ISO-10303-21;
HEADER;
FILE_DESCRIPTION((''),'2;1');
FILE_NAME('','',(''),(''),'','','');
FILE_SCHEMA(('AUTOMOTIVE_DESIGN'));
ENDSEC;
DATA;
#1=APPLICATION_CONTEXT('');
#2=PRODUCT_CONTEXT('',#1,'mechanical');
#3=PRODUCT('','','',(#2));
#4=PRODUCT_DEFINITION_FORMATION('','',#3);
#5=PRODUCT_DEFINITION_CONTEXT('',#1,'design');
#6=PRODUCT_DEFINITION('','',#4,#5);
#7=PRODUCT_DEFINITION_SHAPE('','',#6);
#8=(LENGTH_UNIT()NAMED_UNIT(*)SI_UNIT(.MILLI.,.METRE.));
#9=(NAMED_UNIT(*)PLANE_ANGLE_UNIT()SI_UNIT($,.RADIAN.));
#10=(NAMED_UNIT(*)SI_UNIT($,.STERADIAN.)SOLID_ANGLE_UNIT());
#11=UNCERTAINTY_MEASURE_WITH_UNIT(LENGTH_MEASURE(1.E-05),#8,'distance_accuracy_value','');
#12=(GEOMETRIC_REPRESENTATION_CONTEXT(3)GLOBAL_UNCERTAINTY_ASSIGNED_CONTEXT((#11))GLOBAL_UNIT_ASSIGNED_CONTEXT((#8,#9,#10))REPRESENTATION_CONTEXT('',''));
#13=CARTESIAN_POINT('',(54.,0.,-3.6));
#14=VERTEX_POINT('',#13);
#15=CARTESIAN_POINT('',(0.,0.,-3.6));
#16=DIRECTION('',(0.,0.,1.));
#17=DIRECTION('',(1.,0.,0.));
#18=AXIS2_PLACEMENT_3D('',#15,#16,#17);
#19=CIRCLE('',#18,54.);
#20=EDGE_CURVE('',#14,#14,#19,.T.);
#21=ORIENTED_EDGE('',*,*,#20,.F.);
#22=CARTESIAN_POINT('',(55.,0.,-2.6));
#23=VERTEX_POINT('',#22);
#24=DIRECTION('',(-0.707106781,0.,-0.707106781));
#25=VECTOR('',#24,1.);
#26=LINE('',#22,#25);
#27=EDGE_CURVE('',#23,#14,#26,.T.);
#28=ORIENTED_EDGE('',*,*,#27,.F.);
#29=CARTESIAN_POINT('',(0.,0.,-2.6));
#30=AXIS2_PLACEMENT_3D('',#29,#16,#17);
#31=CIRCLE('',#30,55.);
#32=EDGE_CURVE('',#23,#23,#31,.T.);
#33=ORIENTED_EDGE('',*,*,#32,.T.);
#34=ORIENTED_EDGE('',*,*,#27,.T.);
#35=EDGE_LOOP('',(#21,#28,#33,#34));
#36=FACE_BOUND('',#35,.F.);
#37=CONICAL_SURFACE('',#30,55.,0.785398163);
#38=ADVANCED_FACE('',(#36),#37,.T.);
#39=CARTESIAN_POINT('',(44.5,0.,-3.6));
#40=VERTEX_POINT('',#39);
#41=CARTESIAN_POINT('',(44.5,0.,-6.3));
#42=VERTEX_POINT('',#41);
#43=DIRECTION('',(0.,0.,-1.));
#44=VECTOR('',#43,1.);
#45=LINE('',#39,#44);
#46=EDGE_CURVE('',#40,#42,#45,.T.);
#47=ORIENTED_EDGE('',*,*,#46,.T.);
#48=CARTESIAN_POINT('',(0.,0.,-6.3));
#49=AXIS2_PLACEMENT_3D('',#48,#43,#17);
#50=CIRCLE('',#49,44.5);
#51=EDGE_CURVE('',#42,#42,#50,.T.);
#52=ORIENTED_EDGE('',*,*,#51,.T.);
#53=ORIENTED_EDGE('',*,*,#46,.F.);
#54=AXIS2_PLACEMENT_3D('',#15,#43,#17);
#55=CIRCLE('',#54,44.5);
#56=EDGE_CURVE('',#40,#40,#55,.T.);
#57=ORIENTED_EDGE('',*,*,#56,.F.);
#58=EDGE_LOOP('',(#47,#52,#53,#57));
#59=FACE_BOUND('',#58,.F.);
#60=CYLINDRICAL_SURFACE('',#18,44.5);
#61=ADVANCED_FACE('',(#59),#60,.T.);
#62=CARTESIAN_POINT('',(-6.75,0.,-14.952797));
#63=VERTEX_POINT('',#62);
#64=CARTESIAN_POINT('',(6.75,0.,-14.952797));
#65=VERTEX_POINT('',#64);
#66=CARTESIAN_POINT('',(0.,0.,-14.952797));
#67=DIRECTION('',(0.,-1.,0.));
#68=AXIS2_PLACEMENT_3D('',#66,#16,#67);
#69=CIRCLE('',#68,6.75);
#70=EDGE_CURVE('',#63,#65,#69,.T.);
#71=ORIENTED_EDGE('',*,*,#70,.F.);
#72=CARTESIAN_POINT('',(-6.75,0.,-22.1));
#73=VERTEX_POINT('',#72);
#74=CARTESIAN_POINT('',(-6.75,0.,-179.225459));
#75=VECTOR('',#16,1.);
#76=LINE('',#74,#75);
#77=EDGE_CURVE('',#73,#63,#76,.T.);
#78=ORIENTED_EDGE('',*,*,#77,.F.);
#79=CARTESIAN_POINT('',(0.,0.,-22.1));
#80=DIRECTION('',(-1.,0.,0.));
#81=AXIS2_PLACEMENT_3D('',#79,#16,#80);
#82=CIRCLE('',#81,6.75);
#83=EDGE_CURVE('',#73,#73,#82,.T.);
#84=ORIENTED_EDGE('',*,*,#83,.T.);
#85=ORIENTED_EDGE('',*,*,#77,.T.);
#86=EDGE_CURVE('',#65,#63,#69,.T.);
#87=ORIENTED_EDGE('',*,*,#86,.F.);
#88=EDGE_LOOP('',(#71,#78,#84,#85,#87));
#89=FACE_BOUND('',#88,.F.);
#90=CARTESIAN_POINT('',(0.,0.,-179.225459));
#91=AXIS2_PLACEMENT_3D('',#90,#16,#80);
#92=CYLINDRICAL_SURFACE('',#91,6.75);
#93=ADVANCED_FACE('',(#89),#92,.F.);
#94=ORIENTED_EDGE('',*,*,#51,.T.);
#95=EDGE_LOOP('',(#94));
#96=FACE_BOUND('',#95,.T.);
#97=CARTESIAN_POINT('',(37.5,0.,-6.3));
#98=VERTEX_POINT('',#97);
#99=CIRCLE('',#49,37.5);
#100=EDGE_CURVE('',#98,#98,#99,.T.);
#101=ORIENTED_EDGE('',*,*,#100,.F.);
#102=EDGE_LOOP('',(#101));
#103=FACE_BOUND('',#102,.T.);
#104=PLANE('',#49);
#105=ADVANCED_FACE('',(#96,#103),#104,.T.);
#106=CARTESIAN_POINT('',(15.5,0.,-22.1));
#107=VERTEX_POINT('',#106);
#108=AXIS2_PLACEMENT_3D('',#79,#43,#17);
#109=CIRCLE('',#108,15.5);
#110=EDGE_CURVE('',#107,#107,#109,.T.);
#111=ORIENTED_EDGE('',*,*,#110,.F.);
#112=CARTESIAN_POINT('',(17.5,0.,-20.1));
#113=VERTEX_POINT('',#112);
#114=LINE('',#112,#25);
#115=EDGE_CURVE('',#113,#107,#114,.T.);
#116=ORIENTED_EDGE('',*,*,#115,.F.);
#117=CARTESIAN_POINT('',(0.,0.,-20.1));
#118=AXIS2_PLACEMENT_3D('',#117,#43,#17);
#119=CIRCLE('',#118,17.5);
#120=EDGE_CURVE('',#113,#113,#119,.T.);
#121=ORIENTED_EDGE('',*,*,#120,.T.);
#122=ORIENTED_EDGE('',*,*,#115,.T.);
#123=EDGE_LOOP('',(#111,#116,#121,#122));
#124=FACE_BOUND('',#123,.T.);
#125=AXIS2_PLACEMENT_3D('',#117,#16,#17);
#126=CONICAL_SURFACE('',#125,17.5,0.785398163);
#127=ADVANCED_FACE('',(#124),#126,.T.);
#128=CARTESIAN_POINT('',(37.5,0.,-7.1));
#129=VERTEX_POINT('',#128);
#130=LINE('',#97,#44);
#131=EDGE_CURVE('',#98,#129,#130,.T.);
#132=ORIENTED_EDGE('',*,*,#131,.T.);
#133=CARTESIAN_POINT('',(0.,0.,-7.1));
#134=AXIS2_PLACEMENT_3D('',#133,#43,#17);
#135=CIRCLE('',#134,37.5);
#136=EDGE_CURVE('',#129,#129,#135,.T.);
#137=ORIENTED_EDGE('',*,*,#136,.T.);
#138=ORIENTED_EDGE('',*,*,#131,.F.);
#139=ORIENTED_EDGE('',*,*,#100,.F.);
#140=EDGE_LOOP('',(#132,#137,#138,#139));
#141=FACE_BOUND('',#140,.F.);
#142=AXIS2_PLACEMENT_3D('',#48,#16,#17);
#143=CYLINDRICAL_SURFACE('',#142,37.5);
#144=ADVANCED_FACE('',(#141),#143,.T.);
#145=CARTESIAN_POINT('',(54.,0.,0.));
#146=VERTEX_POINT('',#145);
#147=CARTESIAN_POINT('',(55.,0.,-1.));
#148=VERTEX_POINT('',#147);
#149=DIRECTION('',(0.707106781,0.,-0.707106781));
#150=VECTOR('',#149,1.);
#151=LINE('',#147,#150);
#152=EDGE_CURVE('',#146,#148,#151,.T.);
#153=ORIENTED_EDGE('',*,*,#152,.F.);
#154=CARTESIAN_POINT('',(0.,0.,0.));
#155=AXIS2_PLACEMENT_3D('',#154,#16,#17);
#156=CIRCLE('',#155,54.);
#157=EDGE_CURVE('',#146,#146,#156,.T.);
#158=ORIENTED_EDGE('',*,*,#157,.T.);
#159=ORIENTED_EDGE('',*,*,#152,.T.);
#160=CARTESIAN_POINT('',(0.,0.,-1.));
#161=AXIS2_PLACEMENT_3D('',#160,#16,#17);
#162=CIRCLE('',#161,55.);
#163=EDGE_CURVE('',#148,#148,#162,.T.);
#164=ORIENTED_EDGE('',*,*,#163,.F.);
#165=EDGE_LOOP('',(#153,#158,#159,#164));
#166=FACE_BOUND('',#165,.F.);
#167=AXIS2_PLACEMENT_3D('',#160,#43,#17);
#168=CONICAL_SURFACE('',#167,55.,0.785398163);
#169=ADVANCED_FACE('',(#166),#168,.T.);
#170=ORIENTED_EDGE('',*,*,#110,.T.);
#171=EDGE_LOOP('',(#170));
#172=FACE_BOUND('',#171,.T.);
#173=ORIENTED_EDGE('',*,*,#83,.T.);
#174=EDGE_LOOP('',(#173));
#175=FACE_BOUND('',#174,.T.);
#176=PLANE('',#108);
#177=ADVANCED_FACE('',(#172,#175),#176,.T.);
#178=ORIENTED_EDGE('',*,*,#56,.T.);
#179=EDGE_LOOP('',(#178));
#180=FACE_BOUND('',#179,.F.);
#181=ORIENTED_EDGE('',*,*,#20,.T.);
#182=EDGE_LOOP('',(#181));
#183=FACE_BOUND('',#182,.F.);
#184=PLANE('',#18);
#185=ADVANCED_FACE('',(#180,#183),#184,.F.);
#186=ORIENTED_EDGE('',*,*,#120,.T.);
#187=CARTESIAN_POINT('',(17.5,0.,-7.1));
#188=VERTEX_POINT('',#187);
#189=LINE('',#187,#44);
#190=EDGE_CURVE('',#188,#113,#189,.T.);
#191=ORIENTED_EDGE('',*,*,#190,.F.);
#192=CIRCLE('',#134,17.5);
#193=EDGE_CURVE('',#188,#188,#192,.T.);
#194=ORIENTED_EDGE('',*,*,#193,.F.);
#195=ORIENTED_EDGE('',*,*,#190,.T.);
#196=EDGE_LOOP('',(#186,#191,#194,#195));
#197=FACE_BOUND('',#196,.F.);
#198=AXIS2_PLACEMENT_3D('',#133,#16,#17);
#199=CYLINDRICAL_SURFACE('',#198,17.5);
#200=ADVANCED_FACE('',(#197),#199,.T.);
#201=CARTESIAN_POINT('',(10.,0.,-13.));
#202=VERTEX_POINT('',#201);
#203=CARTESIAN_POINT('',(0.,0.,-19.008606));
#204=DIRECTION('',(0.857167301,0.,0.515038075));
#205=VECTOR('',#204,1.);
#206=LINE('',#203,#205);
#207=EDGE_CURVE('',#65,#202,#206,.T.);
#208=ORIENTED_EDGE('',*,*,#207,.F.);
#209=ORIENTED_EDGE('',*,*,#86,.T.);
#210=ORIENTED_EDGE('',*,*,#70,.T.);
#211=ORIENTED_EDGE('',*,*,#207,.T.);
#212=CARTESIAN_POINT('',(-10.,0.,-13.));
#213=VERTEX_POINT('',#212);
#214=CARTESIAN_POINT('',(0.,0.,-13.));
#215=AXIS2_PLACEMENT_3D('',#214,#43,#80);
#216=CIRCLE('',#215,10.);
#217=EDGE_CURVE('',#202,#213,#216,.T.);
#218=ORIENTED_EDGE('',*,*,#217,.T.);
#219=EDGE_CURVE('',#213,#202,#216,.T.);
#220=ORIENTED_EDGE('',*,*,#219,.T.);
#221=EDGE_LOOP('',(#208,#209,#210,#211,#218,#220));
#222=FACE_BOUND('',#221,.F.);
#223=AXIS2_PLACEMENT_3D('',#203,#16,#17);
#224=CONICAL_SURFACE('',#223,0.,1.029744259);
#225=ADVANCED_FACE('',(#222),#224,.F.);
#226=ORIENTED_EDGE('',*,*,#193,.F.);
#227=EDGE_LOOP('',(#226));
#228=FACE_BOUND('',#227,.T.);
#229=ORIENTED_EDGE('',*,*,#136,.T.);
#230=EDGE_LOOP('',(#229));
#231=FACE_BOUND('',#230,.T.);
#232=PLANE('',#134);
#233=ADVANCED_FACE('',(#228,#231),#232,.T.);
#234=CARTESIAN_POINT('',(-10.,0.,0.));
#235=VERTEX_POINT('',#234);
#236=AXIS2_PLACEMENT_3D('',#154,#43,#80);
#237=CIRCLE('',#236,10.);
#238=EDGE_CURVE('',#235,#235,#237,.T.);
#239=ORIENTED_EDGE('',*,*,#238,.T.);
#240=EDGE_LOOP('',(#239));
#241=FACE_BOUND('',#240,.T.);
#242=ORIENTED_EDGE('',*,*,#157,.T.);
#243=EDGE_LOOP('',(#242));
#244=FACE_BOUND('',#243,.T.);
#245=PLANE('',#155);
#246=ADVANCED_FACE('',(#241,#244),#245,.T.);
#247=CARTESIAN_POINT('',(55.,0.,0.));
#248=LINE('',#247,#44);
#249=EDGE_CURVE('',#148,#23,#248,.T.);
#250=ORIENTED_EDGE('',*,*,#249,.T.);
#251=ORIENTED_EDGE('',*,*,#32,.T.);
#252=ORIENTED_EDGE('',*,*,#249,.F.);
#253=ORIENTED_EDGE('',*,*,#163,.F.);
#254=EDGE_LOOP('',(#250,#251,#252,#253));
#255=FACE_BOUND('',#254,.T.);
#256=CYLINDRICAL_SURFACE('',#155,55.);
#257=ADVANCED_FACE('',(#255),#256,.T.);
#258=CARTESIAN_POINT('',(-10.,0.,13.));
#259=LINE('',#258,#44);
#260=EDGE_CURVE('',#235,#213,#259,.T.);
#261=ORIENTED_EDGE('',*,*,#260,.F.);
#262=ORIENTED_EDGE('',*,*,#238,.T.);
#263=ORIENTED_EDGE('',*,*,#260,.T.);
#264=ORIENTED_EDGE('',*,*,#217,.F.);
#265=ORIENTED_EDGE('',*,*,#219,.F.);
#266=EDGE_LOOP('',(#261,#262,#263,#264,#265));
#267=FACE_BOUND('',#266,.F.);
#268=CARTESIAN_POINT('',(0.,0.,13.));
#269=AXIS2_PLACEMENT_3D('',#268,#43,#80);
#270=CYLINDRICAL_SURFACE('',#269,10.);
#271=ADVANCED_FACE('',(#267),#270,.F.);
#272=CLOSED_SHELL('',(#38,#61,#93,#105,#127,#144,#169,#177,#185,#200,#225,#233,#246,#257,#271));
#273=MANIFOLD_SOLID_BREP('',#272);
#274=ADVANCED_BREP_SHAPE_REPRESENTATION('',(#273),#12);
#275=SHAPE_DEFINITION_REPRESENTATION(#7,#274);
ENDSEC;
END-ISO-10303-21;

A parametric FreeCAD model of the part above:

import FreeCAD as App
import Part
import Sketcher


def edges_at(feature, points):
    """Names of the edges that pass closest to the given points."""
    edges = feature.Shape.Edges
    near = lambda p: min(range(len(edges)), key=lambda i: edges[i].distToShape(Part.Vertex(*p))[0])
    return sorted({f"Edge{near(p) + 1}" for p in points})

doc = App.newDocument("Part")
body = doc.addObject("PartDesign::Body", "Body")

# Sketch on XY plane
sketch1 = doc.addObject("Sketcher::SketchObject", "Sketch")
body.addObject(sketch1)
sketch1.AttachmentSupport = (doc.XY_Plane, [""])
sketch1.MapMode = "FlatFace"
sketch1.addGeometry(Part.Circle(App.Vector(0, 0, 0), App.Vector(0, 0, 1), 55), False)
sketch1.addConstraint([
    Sketcher.Constraint("Coincident", 0, 3, -1, 1),
    Sketcher.Constraint("Diameter", 0, 110.0),
])
pad1 = doc.addObject("PartDesign::Pad", "Pad")
body.addObject(pad1)
pad1.Profile = sketch1
pad1.Length = 3.6
pad1.Reversed = True

# Sketch on XY plane
sketch2 = doc.addObject("Sketcher::SketchObject", "Sketch001")
body.addObject(sketch2)
sketch2.AttachmentSupport = (doc.XY_Plane, [""])
sketch2.MapMode = "FlatFace"
sketch2.AttachmentOffset = App.Placement(App.Vector(0, 0, -3.6), App.Rotation())
sketch2.addGeometry(Part.Circle(App.Vector(0, 0, 0), App.Vector(0, 0, 1), 44), False)
sketch2.addConstraint([
    Sketcher.Constraint("Coincident", 0, 3, -1, 1),
    Sketcher.Constraint("Diameter", 0, 89.0),
])
pad2 = doc.addObject("PartDesign::Pad", "Pad001")
body.addObject(pad2)
pad2.Profile = sketch2
pad2.Length = 2.7
pad2.Reversed = True

# Sketch on XY plane
sketch3 = doc.addObject("Sketcher::SketchObject", "Sketch002")
body.addObject(sketch3)
sketch3.AttachmentSupport = (doc.XY_Plane, [""])
sketch3.MapMode = "FlatFace"
sketch3.AttachmentOffset = App.Placement(App.Vector(0, 0, -6.3), App.Rotation())
sketch3.addGeometry(Part.Circle(App.Vector(0, 0, 0), App.Vector(0, 0, 1), 38), False)
sketch3.addConstraint([
    Sketcher.Constraint("Coincident", 0, 3, -1, 1),
    Sketcher.Constraint("Diameter", 0, 75.0),
])
pad3 = doc.addObject("PartDesign::Pad", "Pad002")
body.addObject(pad3)
pad3.Profile = sketch3
pad3.Length = 0.8
pad3.Reversed = True

# Sketch on XY plane
sketch4 = doc.addObject("Sketcher::SketchObject", "Sketch003")
body.addObject(sketch4)
sketch4.AttachmentSupport = (doc.XY_Plane, [""])
sketch4.MapMode = "FlatFace"
sketch4.AttachmentOffset = App.Placement(App.Vector(0, 0, -7.1), App.Rotation())
sketch4.addGeometry(Part.Circle(App.Vector(0, 0, 0), App.Vector(0, 0, 1), 18), False)
sketch4.addConstraint([
    Sketcher.Constraint("Coincident", 0, 3, -1, 1),
    Sketcher.Constraint("Diameter", 0, 35.0),
])
pad4 = doc.addObject("PartDesign::Pad", "Pad003")
body.addObject(pad4)
pad4.Profile = sketch4
pad4.Length = 15
pad4.Reversed = True
doc.recompute()

chamfer = doc.addObject("PartDesign::Chamfer", "Chamfer")
body.addObject(chamfer)
chamfer.Base = (pad4, edges_at(pad4, [(-17.5, 0, -22.1)]))
chamfer.Size = 2

# Sketch on XY plane
sketch5 = doc.addObject("Sketcher::SketchObject", "Sketch004")
body.addObject(sketch5)
sketch5.AttachmentSupport = (doc.XY_Plane, [""])
sketch5.MapMode = "FlatFace"
sketch5.addGeometry(Part.Circle(App.Vector(0, 0, 0), App.Vector(0, 0, 1), 10), False)
sketch5.addConstraint([
    Sketcher.Constraint("Coincident", 0, 3, -1, 1),
    Sketcher.Constraint("Diameter", 0, 20.0),
])
doc.recompute()
hole = doc.addObject("PartDesign::Hole", "Hole")
body.addObject(hole)
hole.Profile = sketch5
hole.ThreadType = "None"
hole.Diameter = 20
hole.DepthType = "Dimension"
hole.Depth = 13
hole.DrillPoint = "Angled"
hole.DrillPointAngle = 118

# Sketch on XY plane
sketch6 = doc.addObject("Sketcher::SketchObject", "Sketch005")
body.addObject(sketch6)
sketch6.AttachmentSupport = (doc.XY_Plane, [""])
sketch6.MapMode = "FlatFace"
sketch6.AttachmentOffset = App.Placement(App.Vector(0, 0, -22.1), App.Rotation())
sketch6.addGeometry(Part.Circle(App.Vector(0, 0, 0), App.Vector(0, 0, 1), 7), False)
sketch6.addConstraint([
    Sketcher.Constraint("Coincident", 0, 3, -1, 1),
    Sketcher.Constraint("Diameter", 0, 13.5),
])
doc.recompute()
hole2 = doc.addObject("PartDesign::Hole", "Hole001")
body.addObject(hole2)
hole2.Profile = sketch6
hole2.ThreadType = "None"
hole2.Diameter = 13.5
hole2.DepthType = "ThroughAll"
hole2.Reversed = True
doc.recompute()

chamfer2 = doc.addObject("PartDesign::Chamfer", "Chamfer001")
body.addObject(chamfer2)
chamfer2.Base = (hole2, edges_at(hole2, [(-55, 0, 0)]))
chamfer2.Size = 1
doc.recompute()

chamfer3 = doc.addObject("PartDesign::Chamfer", "Chamfer002")
body.addObject(chamfer3)
chamfer3.Base = (chamfer2, edges_at(chamfer2, [(-55, 0, -3.6)]))
chamfer3.Size = 1

doc.recompute()
